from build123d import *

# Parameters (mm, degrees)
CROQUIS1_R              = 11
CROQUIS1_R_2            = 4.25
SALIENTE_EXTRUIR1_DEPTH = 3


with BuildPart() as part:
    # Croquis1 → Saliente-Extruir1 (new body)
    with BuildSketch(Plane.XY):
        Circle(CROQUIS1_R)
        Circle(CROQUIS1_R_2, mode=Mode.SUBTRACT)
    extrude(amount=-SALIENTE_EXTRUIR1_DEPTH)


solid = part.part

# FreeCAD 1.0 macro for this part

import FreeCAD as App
import Part
import Sketcher
from FreeCAD import Vector
Q = App.Units.Quantity

doc = App.newDocument("Part")
body = doc.addObject("PartDesign::Body", "Body")

# Sketch on XY plane
sketch1 = body.newObject("Sketcher::SketchObject", "Sketch")
sketch1.AttachmentSupport = (doc.getObject("XY_Plane"), [""])
sketch1.MapMode = "FlatFace"
sketch1.addGeometry([
    Part.Circle(Vector(0, 0, 0), Vector(0, 0, 1), 11),
    Part.Circle(Vector(0, 0, 0), Vector(0, 0, 1), 4.2),
], False)
sketch1.addConstraint([
    Sketcher.Constraint("Coincident", 0, 3, -1, 1),
    Sketcher.Constraint("Coincident", 1, 3, -1, 1),
    Sketcher.Constraint("Diameter", 0, Q("22 mm")),
    Sketcher.Constraint("Diameter", 1, Q("8.5 mm")),
])
pad1 = body.newObject("PartDesign::Pad", "Pad")
pad1.Profile = sketch1
pad1.Length = 3
pad1.Reversed = True

doc.recompute()
